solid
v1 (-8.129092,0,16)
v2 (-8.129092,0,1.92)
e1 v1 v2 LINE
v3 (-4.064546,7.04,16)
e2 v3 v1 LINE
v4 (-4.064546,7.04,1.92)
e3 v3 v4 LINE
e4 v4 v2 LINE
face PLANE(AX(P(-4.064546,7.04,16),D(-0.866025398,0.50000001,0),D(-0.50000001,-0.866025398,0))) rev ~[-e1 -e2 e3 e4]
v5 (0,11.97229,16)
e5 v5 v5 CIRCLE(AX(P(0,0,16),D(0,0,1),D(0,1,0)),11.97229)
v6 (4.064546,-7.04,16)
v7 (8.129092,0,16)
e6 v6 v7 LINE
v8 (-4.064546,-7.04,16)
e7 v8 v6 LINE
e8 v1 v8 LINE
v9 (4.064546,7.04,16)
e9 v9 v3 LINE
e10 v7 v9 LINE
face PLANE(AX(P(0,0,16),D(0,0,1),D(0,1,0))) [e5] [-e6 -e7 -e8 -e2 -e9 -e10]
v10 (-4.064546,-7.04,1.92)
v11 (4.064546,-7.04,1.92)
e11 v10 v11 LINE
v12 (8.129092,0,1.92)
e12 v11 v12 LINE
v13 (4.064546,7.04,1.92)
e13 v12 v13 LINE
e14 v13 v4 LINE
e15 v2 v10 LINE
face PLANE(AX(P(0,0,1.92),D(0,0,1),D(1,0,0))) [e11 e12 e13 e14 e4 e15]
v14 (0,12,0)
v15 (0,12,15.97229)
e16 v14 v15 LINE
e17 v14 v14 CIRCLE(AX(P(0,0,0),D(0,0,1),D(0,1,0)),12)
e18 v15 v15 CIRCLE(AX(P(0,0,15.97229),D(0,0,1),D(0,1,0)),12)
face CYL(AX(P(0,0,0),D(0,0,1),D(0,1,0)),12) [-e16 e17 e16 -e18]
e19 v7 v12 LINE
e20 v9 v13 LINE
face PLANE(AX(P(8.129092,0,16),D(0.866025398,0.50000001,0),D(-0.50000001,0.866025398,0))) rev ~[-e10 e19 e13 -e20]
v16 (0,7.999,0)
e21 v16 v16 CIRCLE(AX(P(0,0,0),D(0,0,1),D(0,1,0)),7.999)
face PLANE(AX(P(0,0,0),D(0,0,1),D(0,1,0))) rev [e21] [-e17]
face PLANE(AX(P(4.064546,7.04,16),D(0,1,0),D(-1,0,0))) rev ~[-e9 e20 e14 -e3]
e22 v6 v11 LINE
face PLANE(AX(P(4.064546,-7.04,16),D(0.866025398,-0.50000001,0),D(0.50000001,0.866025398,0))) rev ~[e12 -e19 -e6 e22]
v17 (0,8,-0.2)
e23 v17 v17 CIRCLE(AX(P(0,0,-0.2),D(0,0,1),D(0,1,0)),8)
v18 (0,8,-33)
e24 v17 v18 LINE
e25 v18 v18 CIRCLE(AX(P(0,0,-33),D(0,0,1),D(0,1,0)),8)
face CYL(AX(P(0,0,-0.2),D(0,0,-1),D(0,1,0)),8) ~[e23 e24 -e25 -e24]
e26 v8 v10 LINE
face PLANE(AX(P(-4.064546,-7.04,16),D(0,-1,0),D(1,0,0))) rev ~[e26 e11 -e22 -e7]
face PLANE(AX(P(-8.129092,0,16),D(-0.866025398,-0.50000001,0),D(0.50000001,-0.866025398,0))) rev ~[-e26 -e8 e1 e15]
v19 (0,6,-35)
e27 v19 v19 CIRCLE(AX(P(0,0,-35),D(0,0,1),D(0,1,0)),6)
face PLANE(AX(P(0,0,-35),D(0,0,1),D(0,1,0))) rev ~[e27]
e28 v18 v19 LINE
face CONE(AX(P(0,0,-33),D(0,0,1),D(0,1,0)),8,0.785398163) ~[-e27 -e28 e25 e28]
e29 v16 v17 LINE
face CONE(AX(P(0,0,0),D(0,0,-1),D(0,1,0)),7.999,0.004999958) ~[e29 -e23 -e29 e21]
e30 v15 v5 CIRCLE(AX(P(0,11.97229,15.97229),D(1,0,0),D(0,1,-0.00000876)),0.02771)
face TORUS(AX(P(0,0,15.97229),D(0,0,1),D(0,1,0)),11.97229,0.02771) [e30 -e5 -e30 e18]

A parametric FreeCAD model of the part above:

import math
import FreeCAD as App
import Part
import Sketcher
Q = App.Units.Quantity

doc = App.newDocument("Part")
body = doc.addObject("PartDesign::Body", "Body")

# Sketch on YZ plane
sketch1 = body.newObject("Sketcher::SketchObject", "Sketch")
sketch1.AttachmentSupport = (doc.getObject("YZ_Plane"), [""])
sketch1.MapMode = "FlatFace"
sketch1.addGeometry(Part.LineSegment(App.Vector(7.999, 0, 0), App.Vector(12, 0, 0)), False)
sketch1.addGeometry(Part.LineSegment(App.Vector(12, 0, 0), App.Vector(12, 15.972, 0)), False)
sketch1.addGeometry(Part.ArcOfCircle(Part.Circle(App.Vector(11.972, 15.972, 0), App.Vector(0, 0, 1), 0.028), math.radians(0), math.radians(90)), False)
sketch1.addGeometry(Part.LineSegment(App.Vector(11.972, 16, 0), App.Vector(0, 16, 0)), False)
sketch1.addGeometry(Part.LineSegment(App.Vector(0, 16, 0), App.Vector(0, -35, 0)), False)
sketch1.addGeometry(Part.LineSegment(App.Vector(0, -35, 0), App.Vector(6, -35, 0)), False)
sketch1.addGeometry(Part.LineSegment(App.Vector(6, -35, 0), App.Vector(8, -33, 0)), False)
sketch1.addGeometry(Part.LineSegment(App.Vector(8, -33, 0), App.Vector(8, -0.2, 0)), False)
sketch1.addGeometry(Part.LineSegment(App.Vector(8, -0.2, 0), App.Vector(7.999, 0, 0)), False)
sketch1.addConstraint(Sketcher.Constraint("Coincident", 0, 2, 1, 1))
sketch1.addConstraint(Sketcher.Constraint("Coincident", 1, 2, 2, 1))
sketch1.addConstraint(Sketcher.Constraint("Coincident", 2, 2, 3, 1))
sketch1.addConstraint(Sketcher.Constraint("Coincident", 3, 2, 4, 1))
sketch1.addConstraint(Sketcher.Constraint("Coincident", 4, 2, 5, 1))
sketch1.addConstraint(Sketcher.Constraint("Coincident", 5, 2, 6, 1))
sketch1.addConstraint(Sketcher.Constraint("Coincident", 6, 2, 7, 1))
sketch1.addConstraint(Sketcher.Constraint("Coincident", 7, 2, 8, 1))
sketch1.addConstraint(Sketcher.Constraint("Coincident", 8, 2, 0, 1))
sketch1.addConstraint(Sketcher.Constraint("Horizontal", 0))
sketch1.addConstraint(Sketcher.Constraint("Vertical", 1))
sketch1.addConstraint(Sketcher.Constraint("Horizontal", 3))
sketch1.addConstraint(Sketcher.Constraint("Vertical", 4))
sketch1.addConstraint(Sketcher.Constraint("Horizontal", 5))
sketch1.addConstraint(Sketcher.Constraint("Vertical", 7))
sketch1.addConstraint(Sketcher.Constraint("PointOnObject", 0, 2, -1))
sketch1.addConstraint(Sketcher.Constraint("PointOnObject", 3, 2, -2))
sketch1.addConstraint(Sketcher.Constraint("Horizontal", 2, 3, 1, 2))
sketch1.addConstraint(Sketcher.Constraint("DistanceX", 5, 1, 5, 2, 6.0))
sketch1.addConstraint(Sketcher.Constraint("DistanceY", 4, 2, 4, 1, 51.0))
sketch1.addConstraint(Sketcher.Constraint("Angle", 6, Q("45 deg")))
sketch1.addConstraint(Sketcher.Constraint("DistanceY", 7, 1, 7, 2, 32.8))
sketch1.addConstraint(Sketcher.Constraint("DistanceX", -1, 1, 0, 2, 12.0))
sketch1.addConstraint(Sketcher.Constraint("DistanceY", -1, 1, 2, 2, 16.0))
sketch1.addConstraint(Sketcher.Constraint("DistanceX", -1, 1, 6, 2, 8.0))
sketch1.addConstraint(Sketcher.Constraint("DistanceX", 0, 1, 0, 2, 4.001))
sketch1.addConstraint(Sketcher.Constraint("Radius", 2, 0.02771))
sketch1.addConstraint(Sketcher.Constraint("DistanceX", 3, 2, 3, 1, 11.97229))
revolution = body.newObject("PartDesign::Revolution", "Revolution")
revolution.Profile = sketch1
revolution.ReferenceAxis = (sketch1, ["V_Axis"])
revolution.Angle = 360

# Sketch on XY plane
sketch2 = body.newObject("Sketcher::SketchObject", "Sketch001")
sketch2.AttachmentSupport = (doc.getObject("XY_Plane"), [""])
sketch2.MapMode = "FlatFace"
sketch2.AttachmentOffset = App.Placement(App.Vector(0, 0, 16), App.Rotation())
sketch2.addGeometry(Part.LineSegment(App.Vector(8, 0, 0), App.Vector(4, 7, 0)), False)
sketch2.addGeometry(Part.LineSegment(App.Vector(4, 7, 0), App.Vector(-4, 7, 0)), False)
sketch2.addGeometry(Part.LineSegment(App.Vector(-4, 7, 0), App.Vector(-8, 0, 0)), False)
sketch2.addGeometry(Part.LineSegment(App.Vector(-8, 0, 0), App.Vector(-4, -7, 0)), False)
sketch2.addGeometry(Part.LineSegment(App.Vector(-4, -7, 0), App.Vector(4, -7, 0)), False)
sketch2.addGeometry(Part.LineSegment(App.Vector(4, -7, 0), App.Vector(8, 0, 0)), False)
sketch2.addConstraint(Sketcher.Constraint("Coincident", 0, 2, 1, 1))
sketch2.addConstraint(Sketcher.Constraint("Coincident", 1, 2, 2, 1))
sketch2.addConstraint(Sketcher.Constraint("Coincident", 2, 2, 3, 1))
sketch2.addConstraint(Sketcher.Constraint("Coincident", 3, 2, 4, 1))
sketch2.addConstraint(Sketcher.Constraint("Coincident", 4, 2, 5, 1))
sketch2.addConstraint(Sketcher.Constraint("Coincident", 5, 2, 0, 1))
sketch2.addConstraint(Sketcher.Constraint("Horizontal", 1))
sketch2.addConstraint(Sketcher.Constraint("Horizontal", 4))
sketch2.addConstraint(Sketcher.Constraint("Symmetric", 0, 2, 3, 2, -1, 1))
sketch2.addConstraint(Sketcher.Constraint("Symmetric", 2, 2, 5, 2, -1, 1))
sketch2.addConstraint(Sketcher.Constraint("PointOnObject", 2, 2, -1))
sketch2.addConstraint(Sketcher.Constraint("Parallel", 2, 5))
sketch2.addConstraint(Sketcher.Constraint("Vertical", 1, 2, 3, 2))
sketch2.addConstraint(Sketcher.Constraint("Angle", 0, Q("120.000001 deg")))
sketch2.addConstraint(Sketcher.Constraint("DistanceY", -1, 1, 0, 2, 7.04))
sketch2.addConstraint(Sketcher.Constraint("DistanceX", 1, 2, 1, 1, 8.129092))
pocket1 = body.newObject("PartDesign::Pocket", "Pocket")
pocket1.Profile = sketch2
pocket1.Length = 14.08

doc.recompute()
